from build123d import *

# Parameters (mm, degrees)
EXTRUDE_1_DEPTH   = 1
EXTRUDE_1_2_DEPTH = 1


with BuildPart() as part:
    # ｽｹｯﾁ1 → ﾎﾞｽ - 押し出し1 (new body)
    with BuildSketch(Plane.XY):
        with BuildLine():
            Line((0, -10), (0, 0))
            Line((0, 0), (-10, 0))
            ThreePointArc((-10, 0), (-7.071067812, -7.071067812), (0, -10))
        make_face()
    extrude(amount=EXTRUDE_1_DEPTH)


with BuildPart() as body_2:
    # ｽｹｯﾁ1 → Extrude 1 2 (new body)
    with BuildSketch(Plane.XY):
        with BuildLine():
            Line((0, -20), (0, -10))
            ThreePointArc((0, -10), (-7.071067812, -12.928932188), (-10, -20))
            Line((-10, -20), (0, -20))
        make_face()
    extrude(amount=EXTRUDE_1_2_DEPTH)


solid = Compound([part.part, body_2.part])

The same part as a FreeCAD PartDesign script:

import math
import FreeCAD as App
import Part
import Sketcher

doc = App.newDocument("Part")
body = doc.addObject("PartDesign::Body", "Body")

sketch1 = body.newObject("Sketcher::SketchObject", "Sketch")
sketch1.AttachmentSupport = (doc.getObject("XY_Plane"), [""])
sketch1.MapMode = "FlatFace"
sketch1.addGeometry([
    Part.LineSegment(App.Vector(0, -10, 0), App.Vector(0, 0, 0)),
    Part.LineSegment(App.Vector(0, 0, 0), App.Vector(-10, 0, 0)),
    Part.ArcOfCircle(Part.Circle(App.Vector(0, 0, 0), App.Vector(0, 0, 1), 10), math.radians(180), math.radians(270)),
], False)
sketch1.addConstraint([
    Sketcher.Constraint("Coincident", 0, 2, 1, 1),
    Sketcher.Constraint("Coincident", 1, 2, 2, 1),
    Sketcher.Constraint("Coincident", 2, 2, 0, 1),
    Sketcher.Constraint("Vertical", 0),
    Sketcher.Constraint("Horizontal", 1),
    Sketcher.Constraint("Coincident", 2, 3, -1, 1),
    Sketcher.Constraint("Coincident", 0, 2, -1, 1),
    Sketcher.Constraint("Radius", 2, 10.0),
])
pad1 = body.newObject("PartDesign::Pad", "Pad")
pad1.Profile = sketch1
pad1.Length = 1
body2 = doc.addObject("PartDesign::Body", "Body001")

sketch2 = body2.newObject("Sketcher::SketchObject", "Sketch001")
sketch2.AttachmentSupport = (doc.getObject("XY_Plane001"), [""])
sketch2.MapMode = "FlatFace"
sketch2.addGeometry([
    Part.LineSegment(App.Vector(0, -20, 0), App.Vector(0, -10, 0)),
    Part.ArcOfCircle(Part.Circle(App.Vector(0, -20, 0), App.Vector(0, 0, 1), 10), math.radians(90), math.radians(180)),
    Part.LineSegment(App.Vector(-10, -20, 0), App.Vector(0, -20, 0)),
], False)
sketch2.addConstraint([
    Sketcher.Constraint("Coincident", 0, 2, 1, 1),
    Sketcher.Constraint("Coincident", 1, 2, 2, 1),
    Sketcher.Constraint("Coincident", 2, 2, 0, 1),
    Sketcher.Constraint("Vertical", 0),
    Sketcher.Constraint("Horizontal", 2),
    Sketcher.Constraint("Coincident", 2, 2, 1, 3),
    Sketcher.Constraint("PointOnObject", 1, 3, -2),
    Sketcher.Constraint("Radius", 1, 10.0),
    Sketcher.Constraint("DistanceY", 1, 3, -1, 1, 20.0),
])
pad2 = body2.newObject("PartDesign::Pad", "Pad001")
pad2.Profile = sketch2
pad2.Length = 1

doc.recompute()
